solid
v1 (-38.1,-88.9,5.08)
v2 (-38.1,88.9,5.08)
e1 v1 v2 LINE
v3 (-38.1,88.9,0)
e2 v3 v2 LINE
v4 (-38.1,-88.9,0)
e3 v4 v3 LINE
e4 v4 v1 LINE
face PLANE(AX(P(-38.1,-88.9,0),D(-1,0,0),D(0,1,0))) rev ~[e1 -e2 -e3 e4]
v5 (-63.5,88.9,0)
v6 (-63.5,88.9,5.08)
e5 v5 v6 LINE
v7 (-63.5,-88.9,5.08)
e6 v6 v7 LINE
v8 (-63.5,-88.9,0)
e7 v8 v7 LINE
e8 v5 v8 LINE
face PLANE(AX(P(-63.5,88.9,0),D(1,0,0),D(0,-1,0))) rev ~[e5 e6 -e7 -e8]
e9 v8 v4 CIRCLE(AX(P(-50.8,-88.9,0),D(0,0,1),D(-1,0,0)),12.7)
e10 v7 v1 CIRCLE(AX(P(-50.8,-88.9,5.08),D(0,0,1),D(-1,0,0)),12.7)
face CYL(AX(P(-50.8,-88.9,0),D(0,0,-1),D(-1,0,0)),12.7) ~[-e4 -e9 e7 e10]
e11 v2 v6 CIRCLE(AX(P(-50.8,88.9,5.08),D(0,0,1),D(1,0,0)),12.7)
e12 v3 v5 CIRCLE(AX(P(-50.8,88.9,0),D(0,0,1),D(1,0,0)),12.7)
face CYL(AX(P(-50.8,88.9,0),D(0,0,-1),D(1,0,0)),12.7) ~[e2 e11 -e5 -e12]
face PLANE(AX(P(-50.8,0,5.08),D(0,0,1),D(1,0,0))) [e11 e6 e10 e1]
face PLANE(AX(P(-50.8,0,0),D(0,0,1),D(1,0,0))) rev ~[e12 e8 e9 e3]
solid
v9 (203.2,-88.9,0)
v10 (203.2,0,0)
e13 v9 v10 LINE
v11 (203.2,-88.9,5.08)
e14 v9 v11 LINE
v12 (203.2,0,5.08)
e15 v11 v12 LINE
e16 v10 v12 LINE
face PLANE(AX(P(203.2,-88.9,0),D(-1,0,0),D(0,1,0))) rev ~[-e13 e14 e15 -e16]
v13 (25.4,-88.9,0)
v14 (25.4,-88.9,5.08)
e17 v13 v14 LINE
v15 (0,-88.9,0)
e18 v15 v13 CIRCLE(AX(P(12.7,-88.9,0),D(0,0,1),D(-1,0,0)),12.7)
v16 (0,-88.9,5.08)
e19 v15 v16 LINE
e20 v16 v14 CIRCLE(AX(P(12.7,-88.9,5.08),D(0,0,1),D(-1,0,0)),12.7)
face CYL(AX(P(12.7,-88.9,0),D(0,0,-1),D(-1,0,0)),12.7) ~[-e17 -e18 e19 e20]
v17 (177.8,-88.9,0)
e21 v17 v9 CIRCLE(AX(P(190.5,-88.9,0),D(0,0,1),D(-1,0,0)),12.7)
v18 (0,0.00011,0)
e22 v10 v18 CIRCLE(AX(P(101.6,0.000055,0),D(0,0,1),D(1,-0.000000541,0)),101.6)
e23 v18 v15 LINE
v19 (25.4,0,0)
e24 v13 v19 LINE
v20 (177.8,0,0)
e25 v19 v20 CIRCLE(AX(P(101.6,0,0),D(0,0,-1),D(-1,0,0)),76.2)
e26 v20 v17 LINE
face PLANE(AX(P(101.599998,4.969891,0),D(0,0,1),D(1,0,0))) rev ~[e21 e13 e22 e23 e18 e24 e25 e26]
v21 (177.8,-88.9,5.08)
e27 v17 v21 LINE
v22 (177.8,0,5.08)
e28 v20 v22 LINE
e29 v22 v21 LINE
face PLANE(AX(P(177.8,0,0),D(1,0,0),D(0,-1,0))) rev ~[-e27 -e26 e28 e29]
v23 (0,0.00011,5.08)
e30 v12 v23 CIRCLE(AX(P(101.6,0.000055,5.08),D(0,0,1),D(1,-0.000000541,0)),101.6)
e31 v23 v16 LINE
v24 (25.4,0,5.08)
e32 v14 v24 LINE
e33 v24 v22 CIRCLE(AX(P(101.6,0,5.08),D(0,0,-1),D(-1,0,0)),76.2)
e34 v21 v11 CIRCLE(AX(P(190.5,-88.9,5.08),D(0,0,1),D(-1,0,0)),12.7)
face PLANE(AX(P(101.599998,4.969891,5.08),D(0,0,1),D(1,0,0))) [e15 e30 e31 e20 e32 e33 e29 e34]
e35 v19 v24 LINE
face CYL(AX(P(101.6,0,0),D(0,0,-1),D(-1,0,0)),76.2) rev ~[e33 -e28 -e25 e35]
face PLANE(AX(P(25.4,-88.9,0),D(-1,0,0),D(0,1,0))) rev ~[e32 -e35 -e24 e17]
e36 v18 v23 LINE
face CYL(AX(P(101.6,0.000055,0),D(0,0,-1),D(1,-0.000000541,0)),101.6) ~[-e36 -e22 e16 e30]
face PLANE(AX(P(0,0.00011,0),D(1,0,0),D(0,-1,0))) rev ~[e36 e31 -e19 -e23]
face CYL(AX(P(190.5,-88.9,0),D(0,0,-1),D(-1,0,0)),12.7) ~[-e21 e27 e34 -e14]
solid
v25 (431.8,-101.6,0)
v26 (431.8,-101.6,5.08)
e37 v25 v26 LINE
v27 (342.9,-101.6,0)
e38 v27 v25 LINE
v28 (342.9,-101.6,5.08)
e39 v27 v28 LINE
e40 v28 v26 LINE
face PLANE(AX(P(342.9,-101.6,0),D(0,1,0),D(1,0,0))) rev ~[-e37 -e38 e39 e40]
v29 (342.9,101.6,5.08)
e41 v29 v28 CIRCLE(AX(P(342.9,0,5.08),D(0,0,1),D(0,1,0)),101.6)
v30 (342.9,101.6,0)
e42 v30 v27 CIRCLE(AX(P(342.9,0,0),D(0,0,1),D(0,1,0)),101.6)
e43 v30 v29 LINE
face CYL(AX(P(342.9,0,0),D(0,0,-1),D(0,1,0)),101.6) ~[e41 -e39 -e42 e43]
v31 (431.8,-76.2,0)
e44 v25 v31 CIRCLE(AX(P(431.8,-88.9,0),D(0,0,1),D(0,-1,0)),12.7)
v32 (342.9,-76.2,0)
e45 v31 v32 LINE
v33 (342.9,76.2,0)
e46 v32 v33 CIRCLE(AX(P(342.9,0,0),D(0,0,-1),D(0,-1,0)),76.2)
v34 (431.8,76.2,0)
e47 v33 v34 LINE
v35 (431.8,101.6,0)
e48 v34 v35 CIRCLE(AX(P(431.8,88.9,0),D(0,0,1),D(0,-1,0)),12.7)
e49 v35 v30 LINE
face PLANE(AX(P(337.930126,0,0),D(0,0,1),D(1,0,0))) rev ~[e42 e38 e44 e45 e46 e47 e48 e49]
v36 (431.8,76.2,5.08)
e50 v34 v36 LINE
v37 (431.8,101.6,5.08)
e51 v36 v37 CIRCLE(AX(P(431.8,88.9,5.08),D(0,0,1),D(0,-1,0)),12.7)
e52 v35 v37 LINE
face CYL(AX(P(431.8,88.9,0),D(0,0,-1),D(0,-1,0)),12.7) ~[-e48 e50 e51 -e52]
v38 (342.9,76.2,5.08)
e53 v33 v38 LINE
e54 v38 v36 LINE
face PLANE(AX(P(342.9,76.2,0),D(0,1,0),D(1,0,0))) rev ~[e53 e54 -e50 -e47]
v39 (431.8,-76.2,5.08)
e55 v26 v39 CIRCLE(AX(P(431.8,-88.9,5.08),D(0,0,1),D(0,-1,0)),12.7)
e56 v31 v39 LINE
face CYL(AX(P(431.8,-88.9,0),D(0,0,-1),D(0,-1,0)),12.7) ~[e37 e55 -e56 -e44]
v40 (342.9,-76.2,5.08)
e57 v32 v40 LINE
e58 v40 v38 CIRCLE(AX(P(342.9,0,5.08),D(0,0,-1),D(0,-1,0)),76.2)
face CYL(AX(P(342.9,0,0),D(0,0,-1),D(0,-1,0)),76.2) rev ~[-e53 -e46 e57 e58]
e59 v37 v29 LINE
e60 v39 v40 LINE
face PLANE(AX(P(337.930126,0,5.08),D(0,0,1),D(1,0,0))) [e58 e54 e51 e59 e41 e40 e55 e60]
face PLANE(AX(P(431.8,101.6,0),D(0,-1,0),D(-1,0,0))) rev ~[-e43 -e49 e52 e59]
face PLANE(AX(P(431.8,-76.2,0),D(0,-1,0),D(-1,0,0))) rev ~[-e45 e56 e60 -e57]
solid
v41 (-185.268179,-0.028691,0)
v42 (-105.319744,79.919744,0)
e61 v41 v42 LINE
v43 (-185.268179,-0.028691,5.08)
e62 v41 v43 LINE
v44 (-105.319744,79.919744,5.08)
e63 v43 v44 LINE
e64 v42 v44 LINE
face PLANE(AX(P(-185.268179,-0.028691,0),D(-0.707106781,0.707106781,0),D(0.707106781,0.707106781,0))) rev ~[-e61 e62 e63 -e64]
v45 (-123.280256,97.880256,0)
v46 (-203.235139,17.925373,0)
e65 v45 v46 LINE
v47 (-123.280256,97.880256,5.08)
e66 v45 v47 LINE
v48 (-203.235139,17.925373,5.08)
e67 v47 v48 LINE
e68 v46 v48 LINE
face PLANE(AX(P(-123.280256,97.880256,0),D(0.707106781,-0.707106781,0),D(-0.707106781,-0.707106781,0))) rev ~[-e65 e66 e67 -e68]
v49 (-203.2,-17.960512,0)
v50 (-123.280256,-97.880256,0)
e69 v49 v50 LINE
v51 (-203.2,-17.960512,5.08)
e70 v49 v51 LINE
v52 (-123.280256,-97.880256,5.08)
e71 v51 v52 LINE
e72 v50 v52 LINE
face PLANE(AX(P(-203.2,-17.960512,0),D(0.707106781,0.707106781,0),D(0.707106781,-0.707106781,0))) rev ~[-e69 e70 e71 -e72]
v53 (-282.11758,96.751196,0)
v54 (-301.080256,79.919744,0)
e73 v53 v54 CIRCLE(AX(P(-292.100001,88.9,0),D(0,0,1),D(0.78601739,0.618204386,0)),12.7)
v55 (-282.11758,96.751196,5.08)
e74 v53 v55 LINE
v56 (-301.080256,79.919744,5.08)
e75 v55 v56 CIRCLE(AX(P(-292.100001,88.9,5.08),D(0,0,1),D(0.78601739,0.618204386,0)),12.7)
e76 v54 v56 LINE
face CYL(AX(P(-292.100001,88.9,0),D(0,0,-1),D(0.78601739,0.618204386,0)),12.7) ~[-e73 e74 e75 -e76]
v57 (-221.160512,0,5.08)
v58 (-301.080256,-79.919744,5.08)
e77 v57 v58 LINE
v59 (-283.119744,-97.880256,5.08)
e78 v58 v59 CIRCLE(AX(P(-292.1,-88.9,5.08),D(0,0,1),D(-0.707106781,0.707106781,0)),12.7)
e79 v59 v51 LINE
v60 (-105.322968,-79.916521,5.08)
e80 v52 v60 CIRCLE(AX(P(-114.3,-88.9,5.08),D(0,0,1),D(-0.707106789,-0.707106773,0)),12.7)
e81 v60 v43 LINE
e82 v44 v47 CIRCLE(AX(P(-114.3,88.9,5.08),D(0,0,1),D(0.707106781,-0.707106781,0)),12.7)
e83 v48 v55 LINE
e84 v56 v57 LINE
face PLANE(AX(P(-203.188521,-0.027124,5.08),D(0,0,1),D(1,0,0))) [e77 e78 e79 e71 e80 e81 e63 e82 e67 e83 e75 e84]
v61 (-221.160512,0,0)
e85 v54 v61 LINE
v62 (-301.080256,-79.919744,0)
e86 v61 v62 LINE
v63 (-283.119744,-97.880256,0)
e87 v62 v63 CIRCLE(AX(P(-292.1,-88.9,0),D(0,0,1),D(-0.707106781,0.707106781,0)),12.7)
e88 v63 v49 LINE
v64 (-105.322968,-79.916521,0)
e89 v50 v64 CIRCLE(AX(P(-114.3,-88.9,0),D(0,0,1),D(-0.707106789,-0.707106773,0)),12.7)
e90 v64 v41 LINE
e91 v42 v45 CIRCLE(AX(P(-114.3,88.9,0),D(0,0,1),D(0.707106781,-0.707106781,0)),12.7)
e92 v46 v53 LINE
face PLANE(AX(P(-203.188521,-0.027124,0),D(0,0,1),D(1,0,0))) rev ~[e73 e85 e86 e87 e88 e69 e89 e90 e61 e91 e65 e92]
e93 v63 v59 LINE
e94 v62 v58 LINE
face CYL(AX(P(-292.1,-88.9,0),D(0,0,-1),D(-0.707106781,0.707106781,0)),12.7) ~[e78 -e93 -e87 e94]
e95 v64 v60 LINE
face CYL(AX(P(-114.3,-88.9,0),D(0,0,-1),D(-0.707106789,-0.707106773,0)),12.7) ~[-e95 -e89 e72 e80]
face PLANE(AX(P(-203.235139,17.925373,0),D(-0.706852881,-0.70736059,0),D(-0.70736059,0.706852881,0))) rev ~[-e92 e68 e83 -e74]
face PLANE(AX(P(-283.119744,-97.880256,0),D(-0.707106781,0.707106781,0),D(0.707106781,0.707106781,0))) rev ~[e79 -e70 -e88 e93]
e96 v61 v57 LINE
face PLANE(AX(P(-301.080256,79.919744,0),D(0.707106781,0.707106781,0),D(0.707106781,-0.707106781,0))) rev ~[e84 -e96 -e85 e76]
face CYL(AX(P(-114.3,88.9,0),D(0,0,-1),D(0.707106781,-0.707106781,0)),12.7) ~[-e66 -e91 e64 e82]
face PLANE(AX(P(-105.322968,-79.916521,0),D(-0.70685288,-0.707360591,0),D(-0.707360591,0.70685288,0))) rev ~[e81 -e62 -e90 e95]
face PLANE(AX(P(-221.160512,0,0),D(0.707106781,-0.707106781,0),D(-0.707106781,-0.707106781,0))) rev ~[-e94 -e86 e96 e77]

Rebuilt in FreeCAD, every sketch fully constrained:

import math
import FreeCAD as App
import Part
import Sketcher
Q = App.Units.Quantity

doc = App.newDocument("Part")
body = doc.addObject("PartDesign::Body", "Body")
body.AllowCompound = True

sketch1 = doc.addObject("Sketcher::SketchObject", "Sketch")
body.addObject(sketch1)
sketch1.AttachmentSupport = (doc.XY_Plane, [""])
sketch1.MapMode = "FlatFace"
sketch1.addGeometry(Part.LineSegment(App.Vector(-203.235139, 17.925373, 0), App.Vector(-282.11758, 96.751196, 0)), False)
sketch1.addGeometry(Part.ArcOfCircle(Part.Circle(App.Vector(-292.100001, 88.9, 0), App.Vector(0, 0, 1), 12.7), math.radians(38.185127), math.radians(225.000004)), False)
sketch1.addGeometry(Part.LineSegment(App.Vector(-301.080256, 79.919744, 0), App.Vector(-221.160512, 0, 0)), False)
sketch1.addGeometry(Part.LineSegment(App.Vector(-221.160512, 0, 0), App.Vector(-301.080256, -79.919744, 0)), False)
sketch1.addGeometry(Part.ArcOfCircle(Part.Circle(App.Vector(-292.1, -88.9, 0), App.Vector(0, 0, 1), 12.7), math.radians(135), math.radians(315)), False)
sketch1.addGeometry(Part.LineSegment(App.Vector(-283.119744, -97.880256, 0), App.Vector(-203.2, -17.960512, 0)), False)
sketch1.addGeometry(Part.LineSegment(App.Vector(-203.2, -17.960512, 0), App.Vector(-123.280256, -97.880256, 0)), False)
sketch1.addGeometry(Part.ArcOfCircle(Part.Circle(App.Vector(-114.3, -88.9, 0), App.Vector(0, 0, 1), 12.7), math.radians(-135.000001), math.radians(45.020567)), False)
sketch1.addGeometry(Part.LineSegment(App.Vector(-105.322968, -79.916521, 0), App.Vector(-185.268179, -0.028691, 0)), False)
sketch1.addGeometry(Part.LineSegment(App.Vector(-185.268179, -0.028691, 0), App.Vector(-105.319744, 79.919744, 0)), False)
sketch1.addGeometry(Part.ArcOfCircle(Part.Circle(App.Vector(-114.3, 88.9, 0), App.Vector(0, 0, 1), 12.7), math.radians(-45), math.radians(135)), False)
sketch1.addGeometry(Part.LineSegment(App.Vector(-123.280256, 97.880256, 0), App.Vector(-203.235139, 17.925373, 0)), False)
sketch1.addGeometry(Part.LineSegment(App.Vector(-38.1, -88.9, 0), App.Vector(-38.1, 88.9, 0)), False)
sketch1.addGeometry(Part.ArcOfCircle(Part.Circle(App.Vector(-50.8, 88.9, 0), App.Vector(0, 0, 1), 12.7), math.radians(0), math.radians(180)), False)
sketch1.addGeometry(Part.LineSegment(App.Vector(-63.5, 88.9, 0), App.Vector(-63.5, -88.9, 0)), False)
sketch1.addGeometry(Part.ArcOfCircle(Part.Circle(App.Vector(-50.8, -88.9, 0), App.Vector(0, 0, 1), 12.7), math.radians(180), math.radians(360)), False)
sketch1.addGeometry(Part.LineSegment(App.Vector(0, 0.00011, 0), App.Vector(0, -88.9, 0)), False)
sketch1.addGeometry(Part.ArcOfCircle(Part.Circle(App.Vector(12.7, -88.9, 0), App.Vector(0, 0, 1), 12.7), math.radians(180), math.radians(360)), False)
sketch1.addGeometry(Part.LineSegment(App.Vector(25.4, -88.9, 0), App.Vector(25.4, 0, 0)), False)
sketch1.addGeometry(Part.ArcOfCircle(Part.Circle(App.Vector(101.6, 0, 0), App.Vector(0, 0, 1), 76.2), math.radians(0), math.radians(180)), False)
sketch1.addGeometry(Part.LineSegment(App.Vector(177.8, 0, 0), App.Vector(177.8, -88.9, 0)), False)
sketch1.addGeometry(Part.ArcOfCircle(Part.Circle(App.Vector(190.5, -88.9, 0), App.Vector(0, 0, 1), 12.7), math.radians(180), math.radians(360)), False)
sketch1.addGeometry(Part.LineSegment(App.Vector(203.2, -88.9, 0), App.Vector(203.2, 0, 0)), False)
sketch1.addGeometry(Part.ArcOfCircle(Part.Circle(App.Vector(101.6, 0.000055, 0), App.Vector(0, 0, 1), 101.6), math.radians(-0.000031), math.radians(179.999969)), False)
sketch1.addGeometry(Part.ArcOfCircle(Part.Circle(App.Vector(342.9, 0, 0), App.Vector(0, 0, 1), 76.2), math.radians(90), math.radians(270)), False)
sketch1.addGeometry(Part.LineSegment(App.Vector(342.9, 76.2, 0), App.Vector(431.8, 76.2, 0)), False)
sketch1.addGeometry(Part.ArcOfCircle(Part.Circle(App.Vector(431.8, 88.9, 0), App.Vector(0, 0, 1), 12.7), math.radians(-90), math.radians(90)), False)
sketch1.addGeometry(Part.LineSegment(App.Vector(431.8, 101.6, 0), App.Vector(342.9, 101.6, 0)), False)
sketch1.addGeometry(Part.ArcOfCircle(Part.Circle(App.Vector(342.9, 0, 0), App.Vector(0, 0, 1), 101.6), math.radians(90), math.radians(270)), False)
sketch1.addGeometry(Part.LineSegment(App.Vector(342.9, -101.6, 0), App.Vector(431.8, -101.6, 0)), False)
sketch1.addGeometry(Part.ArcOfCircle(Part.Circle(App.Vector(431.8, -88.9, 0), App.Vector(0, 0, 1), 12.7), math.radians(-90), math.radians(90)), False)
sketch1.addGeometry(Part.LineSegment(App.Vector(431.8, -76.2, 0), App.Vector(342.9, -76.2, 0)), False)
sketch1.addConstraint(Sketcher.Constraint("Coincident", 0, 2, 1, 1))
sketch1.addConstraint(Sketcher.Constraint("Coincident", 1, 2, 2, 1))
sketch1.addConstraint(Sketcher.Constraint("Coincident", 2, 2, 3, 1))
sketch1.addConstraint(Sketcher.Constraint("Coincident", 3, 2, 4, 1))
sketch1.addConstraint(Sketcher.Constraint("Coincident", 4, 2, 5, 1))
sketch1.addConstraint(Sketcher.Constraint("Coincident", 5, 2, 6, 1))
sketch1.addConstraint(Sketcher.Constraint("Coincident", 6, 2, 7, 1))
sketch1.addConstraint(Sketcher.Constraint("Coincident", 7, 2, 8, 1))
sketch1.addConstraint(Sketcher.Constraint("Coincident", 8, 2, 9, 1))
sketch1.addConstraint(Sketcher.Constraint("Coincident", 9, 2, 10, 1))
sketch1.addConstraint(Sketcher.Constraint("Coincident", 10, 2, 11, 1))
sketch1.addConstraint(Sketcher.Constraint("Coincident", 11, 2, 0, 1))
sketch1.addConstraint(Sketcher.Constraint("Coincident", 12, 2, 13, 1))
sketch1.addConstraint(Sketcher.Constraint("Coincident", 13, 2, 14, 1))
sketch1.addConstraint(Sketcher.Constraint("Coincident", 14, 2, 15, 1))
sketch1.addConstraint(Sketcher.Constraint("Coincident", 15, 2, 12, 1))
sketch1.addConstraint(Sketcher.Constraint("Coincident", 16, 2, 17, 1))
sketch1.addConstraint(Sketcher.Constraint("Coincident", 17, 2, 18, 1))
sketch1.addConstraint(Sketcher.Constraint("Coincident", 18, 2, 19, 2))
sketch1.addConstraint(Sketcher.Constraint("Coincident", 19, 1, 20, 1))
sketch1.addConstraint(Sketcher.Constraint("Coincident", 20, 2, 21, 1))
sketch1.addConstraint(Sketcher.Constraint("Coincident", 21, 2, 22, 1))
sketch1.addConstraint(Sketcher.Constraint("Coincident", 22, 2, 23, 1))
sketch1.addConstraint(Sketcher.Constraint("Coincident", 23, 2, 16, 1))
sketch1.addConstraint(Sketcher.Constraint("Coincident", 24, 1, 25, 1))
sketch1.addConstraint(Sketcher.Constraint("Coincident", 25, 2, 26, 1))
sketch1.addConstraint(Sketcher.Constraint("Coincident", 26, 2, 27, 1))
sketch1.addConstraint(Sketcher.Constraint("Coincident", 27, 2, 28, 1))
sketch1.addConstraint(Sketcher.Constraint("Coincident", 28, 2, 29, 1))
sketch1.addConstraint(Sketcher.Constraint("Coincident", 29, 2, 30, 1))
sketch1.addConstraint(Sketcher.Constraint("Coincident", 30, 2, 31, 1))
sketch1.addConstraint(Sketcher.Constraint("Coincident", 31, 2, 24, 2))
sketch1.addConstraint(Sketcher.Constraint("Vertical", 12))
sketch1.addConstraint(Sketcher.Constraint("Vertical", 14))
sketch1.addConstraint(Sketcher.Constraint("Vertical", 16))
sketch1.addConstraint(Sketcher.Constraint("Vertical", 18))
sketch1.addConstraint(Sketcher.Constraint("Vertical", 20))
sketch1.addConstraint(Sketcher.Constraint("Vertical", 22))
sketch1.addConstraint(Sketcher.Constraint("Horizontal", 25))
sketch1.addConstraint(Sketcher.Constraint("Horizontal", 27))
sketch1.addConstraint(Sketcher.Constraint("Horizontal", 29))
sketch1.addConstraint(Sketcher.Constraint("Horizontal", 31))
sketch1.addConstraint(Sketcher.Constraint("Coincident", 28, 3, 24, 3))
sketch1.addConstraint(Sketcher.Constraint("PointOnObject", 19, 3, -1))
sketch1.addConstraint(Sketcher.Constraint("PointOnObject", 24, 3, -1))
sketch1.addConstraint(Sketcher.Constraint("PointOnObject", 2, 2, -1))
sketch1.addConstraint(Sketcher.Constraint("PointOnObject", 16, 2, -2))
sketch1.addConstraint(Sketcher.Constraint("PointOnObject", 18, 2, -1))
sketch1.addConstraint(Sketcher.Constraint("PointOnObject", 19, 1, -1))
sketch1.addConstraint(Sketcher.Constraint("PointOnObject", 22, 2, -1))
sketch1.addConstraint(Sketcher.Constraint("Radius", 19, Q("3 in")))
sketch1.addConstraint(Sketcher.Constraint("Radius", 23, Q("4 in")))
sketch1.addConstraint(Sketcher.Constraint("Radius", 24, Q("3 in")))
sketch1.addConstraint(Sketcher.Constraint("Radius", 28, Q("4 in")))
sketch1.addConstraint(Sketcher.Constraint("Radius", 1, Q("0.5 in")))
sketch1.addConstraint(Sketcher.Constraint("Radius", 4, Q("0.5 in")))
sketch1.addConstraint(Sketcher.Constraint("Radius", 7, Q("0.5 in")))
sketch1.addConstraint(Sketcher.Constraint("Radius", 10, Q("0.5 in")))
sketch1.addConstraint(Sketcher.Constraint("Radius", 13, Q("0.5 in")))
sketch1.addConstraint(Sketcher.Constraint("Radius", 17, Q("0.5 in")))
sketch1.addConstraint(Sketcher.Constraint("DistanceY", 12, 1, 12, 2, Q("7 in")))
sketch1.addConstraint(Sketcher.Constraint("DistanceY", 14, 2, 14, 1, Q("7 in")))
sketch1.addConstraint(Sketcher.Constraint("DistanceX", 25, 1, 25, 2, Q("3.5 in")))
sketch1.addConstraint(Sketcher.Constraint("DistanceX", 27, 2, 27, 1, Q("3.5 in")))
sketch1.addConstraint(Sketcher.Constraint("DistanceX", 29, 1, 29, 2, Q("3.5 in")))
sketch1.addConstraint(Sketcher.Constraint("DistanceX", 31, 2, 31, 1, Q("3.5 in")))
sketch1.addConstraint(Sketcher.Constraint("DistanceY", 18, 1, 18, 2, Q("3.5 in")))
sketch1.addConstraint(Sketcher.Constraint("DistanceY", 20, 2, 20, 1, Q("3.5 in")))
sketch1.addConstraint(Sketcher.Constraint("DistanceY", 22, 1, 22, 2, Q("3.5 in")))
sketch1.addConstraint(Sketcher.Constraint("DistanceX", 13, 3, -1, 1, Q("2 in")))
sketch1.addConstraint(Sketcher.Constraint("DistanceX", -1, 1, 26, 3, Q("17 in")))
sketch1.addConstraint(Sketcher.Constraint("DistanceX", -1, 1, 30, 3, Q("17 in")))
sketch1.addConstraint(Sketcher.Constraint("DistanceX", 5, 2, -1, 1, Q("8 in")))
sketch1.addConstraint(Sketcher.Constraint("DistanceX", -1, 1, 25, 2, Q("17 in")))
sketch1.addConstraint(Sketcher.Constraint("DistanceX", -1, 1, 26, 2, Q("17 in")))
sketch1.addConstraint(Sketcher.Constraint("DistanceX", -1, 1, 29, 2, Q("17 in")))
sketch1.addConstraint(Sketcher.Constraint("DistanceX", -1, 1, 30, 2, Q("17 in")))
sketch1.addConstraint(Sketcher.Constraint("DistanceY", 4, 3, 1, 3, Q("7 in")))
sketch1.addConstraint(Sketcher.Constraint("DistanceX", 4, 3, 7, 3, Q("7 in")))
sketch1.addConstraint(Sketcher.Constraint("DistanceX", 1, 3, 7, 3, Q("7 in")))
sketch1.addConstraint(Sketcher.Constraint("DistanceY", 7, 3, 1, 3, Q("7 in")))
sketch1.addConstraint(Sketcher.Constraint("DistanceY", 7, 3, 10, 3, Q("7 in")))
sketch1.addConstraint(Sketcher.Constraint("DistanceX", 1, 3, 10, 3, Q("7 in")))
sketch1.addConstraint(Sketcher.Constraint("DistanceY", 7, 3, 13, 3, Q("7 in")))
sketch1.addConstraint(Sketcher.Constraint("DistanceY", 15, 3, 13, 3, Q("7 in")))
sketch1.addConstraint(Sketcher.Constraint("DistanceX", 7, 3, 17, 3, Q("5 in")))
sketch1.addConstraint(Sketcher.Constraint("DistanceY", 17, 3, 13, 3, Q("7 in")))
sketch1.addConstraint(Sketcher.Constraint("DistanceY", 21, 3, 13, 3, Q("7 in")))
sketch1.addConstraint(Sketcher.Constraint("DistanceX", 21, 3, 24, 3, Q("6 in")))
sketch1.addConstraint(Sketcher.Constraint("DistanceY", 21, 3, 26, 3, Q("7 in")))
sketch1.addConstraint(Sketcher.Constraint("DistanceY", 4, 2, 1, 2, Q("7 in")))
sketch1.addConstraint(Sketcher.Constraint("DistanceY", -1, 1, 12, 2, Q("3.5 in")))
sketch1.addConstraint(Sketcher.Constraint("DistanceY", -1, 1, 13, 2, Q("3.5 in")))
sketch1.addConstraint(Sketcher.Constraint("DistanceY", 16, 2, -1, 1, Q("3.5 in")))
sketch1.addConstraint(Sketcher.Constraint("DistanceY", 16, 2, 16, 1, 88.90011))
sketch1.addConstraint(Sketcher.Constraint("Distance", 0, 111.51659))
sketch1.addConstraint(Sketcher.Constraint("Distance", 9, 113.064161))
sketch1.addConstraint(Sketcher.Constraint("Distance", 11, 113.07328))
sketch1.addConstraint(Sketcher.Constraint("DistanceX", 0, 2, -1, 1, 282.11758))
sketch1.addConstraint(Sketcher.Constraint("DistanceX", 7, 2, -1, 1, 105.322968))
sketch1.addConstraint(Sketcher.Constraint("DistanceX", 8, 2, -1, 1, 185.268179))
sketch1.addConstraint(Sketcher.Constraint("DistanceY", 8, 2, -1, 1, 0.028691))
sketch1.addConstraint(Sketcher.Constraint("DistanceX", 11, 2, -1, 1, 203.235139))
sketch1.addConstraint(Sketcher.Constraint("DistanceX", 4, 3, 2, 2, 70.939488))
sketch1.addConstraint(Sketcher.Constraint("DistanceY", 3, 2, 0, 2, 176.67094))
sketch1.addConstraint(Sketcher.Constraint("DistanceX", 4, 2, 2, 2, 61.959232))
sketch1.addConstraint(Sketcher.Constraint("DistanceY", 4, 3, 5, 2, 70.939488))
sketch1.addConstraint(Sketcher.Constraint("Distance", 6, 113.023586))
sketch1.addConstraint(Sketcher.Constraint("DistanceY", 17, 3, 23, 3, 88.900055))
pad1 = doc.addObject("PartDesign::Pad", "Pad")
body.addObject(pad1)
pad1.Profile = sketch1
pad1.Length = Q("0.2 in")

doc.recompute()
